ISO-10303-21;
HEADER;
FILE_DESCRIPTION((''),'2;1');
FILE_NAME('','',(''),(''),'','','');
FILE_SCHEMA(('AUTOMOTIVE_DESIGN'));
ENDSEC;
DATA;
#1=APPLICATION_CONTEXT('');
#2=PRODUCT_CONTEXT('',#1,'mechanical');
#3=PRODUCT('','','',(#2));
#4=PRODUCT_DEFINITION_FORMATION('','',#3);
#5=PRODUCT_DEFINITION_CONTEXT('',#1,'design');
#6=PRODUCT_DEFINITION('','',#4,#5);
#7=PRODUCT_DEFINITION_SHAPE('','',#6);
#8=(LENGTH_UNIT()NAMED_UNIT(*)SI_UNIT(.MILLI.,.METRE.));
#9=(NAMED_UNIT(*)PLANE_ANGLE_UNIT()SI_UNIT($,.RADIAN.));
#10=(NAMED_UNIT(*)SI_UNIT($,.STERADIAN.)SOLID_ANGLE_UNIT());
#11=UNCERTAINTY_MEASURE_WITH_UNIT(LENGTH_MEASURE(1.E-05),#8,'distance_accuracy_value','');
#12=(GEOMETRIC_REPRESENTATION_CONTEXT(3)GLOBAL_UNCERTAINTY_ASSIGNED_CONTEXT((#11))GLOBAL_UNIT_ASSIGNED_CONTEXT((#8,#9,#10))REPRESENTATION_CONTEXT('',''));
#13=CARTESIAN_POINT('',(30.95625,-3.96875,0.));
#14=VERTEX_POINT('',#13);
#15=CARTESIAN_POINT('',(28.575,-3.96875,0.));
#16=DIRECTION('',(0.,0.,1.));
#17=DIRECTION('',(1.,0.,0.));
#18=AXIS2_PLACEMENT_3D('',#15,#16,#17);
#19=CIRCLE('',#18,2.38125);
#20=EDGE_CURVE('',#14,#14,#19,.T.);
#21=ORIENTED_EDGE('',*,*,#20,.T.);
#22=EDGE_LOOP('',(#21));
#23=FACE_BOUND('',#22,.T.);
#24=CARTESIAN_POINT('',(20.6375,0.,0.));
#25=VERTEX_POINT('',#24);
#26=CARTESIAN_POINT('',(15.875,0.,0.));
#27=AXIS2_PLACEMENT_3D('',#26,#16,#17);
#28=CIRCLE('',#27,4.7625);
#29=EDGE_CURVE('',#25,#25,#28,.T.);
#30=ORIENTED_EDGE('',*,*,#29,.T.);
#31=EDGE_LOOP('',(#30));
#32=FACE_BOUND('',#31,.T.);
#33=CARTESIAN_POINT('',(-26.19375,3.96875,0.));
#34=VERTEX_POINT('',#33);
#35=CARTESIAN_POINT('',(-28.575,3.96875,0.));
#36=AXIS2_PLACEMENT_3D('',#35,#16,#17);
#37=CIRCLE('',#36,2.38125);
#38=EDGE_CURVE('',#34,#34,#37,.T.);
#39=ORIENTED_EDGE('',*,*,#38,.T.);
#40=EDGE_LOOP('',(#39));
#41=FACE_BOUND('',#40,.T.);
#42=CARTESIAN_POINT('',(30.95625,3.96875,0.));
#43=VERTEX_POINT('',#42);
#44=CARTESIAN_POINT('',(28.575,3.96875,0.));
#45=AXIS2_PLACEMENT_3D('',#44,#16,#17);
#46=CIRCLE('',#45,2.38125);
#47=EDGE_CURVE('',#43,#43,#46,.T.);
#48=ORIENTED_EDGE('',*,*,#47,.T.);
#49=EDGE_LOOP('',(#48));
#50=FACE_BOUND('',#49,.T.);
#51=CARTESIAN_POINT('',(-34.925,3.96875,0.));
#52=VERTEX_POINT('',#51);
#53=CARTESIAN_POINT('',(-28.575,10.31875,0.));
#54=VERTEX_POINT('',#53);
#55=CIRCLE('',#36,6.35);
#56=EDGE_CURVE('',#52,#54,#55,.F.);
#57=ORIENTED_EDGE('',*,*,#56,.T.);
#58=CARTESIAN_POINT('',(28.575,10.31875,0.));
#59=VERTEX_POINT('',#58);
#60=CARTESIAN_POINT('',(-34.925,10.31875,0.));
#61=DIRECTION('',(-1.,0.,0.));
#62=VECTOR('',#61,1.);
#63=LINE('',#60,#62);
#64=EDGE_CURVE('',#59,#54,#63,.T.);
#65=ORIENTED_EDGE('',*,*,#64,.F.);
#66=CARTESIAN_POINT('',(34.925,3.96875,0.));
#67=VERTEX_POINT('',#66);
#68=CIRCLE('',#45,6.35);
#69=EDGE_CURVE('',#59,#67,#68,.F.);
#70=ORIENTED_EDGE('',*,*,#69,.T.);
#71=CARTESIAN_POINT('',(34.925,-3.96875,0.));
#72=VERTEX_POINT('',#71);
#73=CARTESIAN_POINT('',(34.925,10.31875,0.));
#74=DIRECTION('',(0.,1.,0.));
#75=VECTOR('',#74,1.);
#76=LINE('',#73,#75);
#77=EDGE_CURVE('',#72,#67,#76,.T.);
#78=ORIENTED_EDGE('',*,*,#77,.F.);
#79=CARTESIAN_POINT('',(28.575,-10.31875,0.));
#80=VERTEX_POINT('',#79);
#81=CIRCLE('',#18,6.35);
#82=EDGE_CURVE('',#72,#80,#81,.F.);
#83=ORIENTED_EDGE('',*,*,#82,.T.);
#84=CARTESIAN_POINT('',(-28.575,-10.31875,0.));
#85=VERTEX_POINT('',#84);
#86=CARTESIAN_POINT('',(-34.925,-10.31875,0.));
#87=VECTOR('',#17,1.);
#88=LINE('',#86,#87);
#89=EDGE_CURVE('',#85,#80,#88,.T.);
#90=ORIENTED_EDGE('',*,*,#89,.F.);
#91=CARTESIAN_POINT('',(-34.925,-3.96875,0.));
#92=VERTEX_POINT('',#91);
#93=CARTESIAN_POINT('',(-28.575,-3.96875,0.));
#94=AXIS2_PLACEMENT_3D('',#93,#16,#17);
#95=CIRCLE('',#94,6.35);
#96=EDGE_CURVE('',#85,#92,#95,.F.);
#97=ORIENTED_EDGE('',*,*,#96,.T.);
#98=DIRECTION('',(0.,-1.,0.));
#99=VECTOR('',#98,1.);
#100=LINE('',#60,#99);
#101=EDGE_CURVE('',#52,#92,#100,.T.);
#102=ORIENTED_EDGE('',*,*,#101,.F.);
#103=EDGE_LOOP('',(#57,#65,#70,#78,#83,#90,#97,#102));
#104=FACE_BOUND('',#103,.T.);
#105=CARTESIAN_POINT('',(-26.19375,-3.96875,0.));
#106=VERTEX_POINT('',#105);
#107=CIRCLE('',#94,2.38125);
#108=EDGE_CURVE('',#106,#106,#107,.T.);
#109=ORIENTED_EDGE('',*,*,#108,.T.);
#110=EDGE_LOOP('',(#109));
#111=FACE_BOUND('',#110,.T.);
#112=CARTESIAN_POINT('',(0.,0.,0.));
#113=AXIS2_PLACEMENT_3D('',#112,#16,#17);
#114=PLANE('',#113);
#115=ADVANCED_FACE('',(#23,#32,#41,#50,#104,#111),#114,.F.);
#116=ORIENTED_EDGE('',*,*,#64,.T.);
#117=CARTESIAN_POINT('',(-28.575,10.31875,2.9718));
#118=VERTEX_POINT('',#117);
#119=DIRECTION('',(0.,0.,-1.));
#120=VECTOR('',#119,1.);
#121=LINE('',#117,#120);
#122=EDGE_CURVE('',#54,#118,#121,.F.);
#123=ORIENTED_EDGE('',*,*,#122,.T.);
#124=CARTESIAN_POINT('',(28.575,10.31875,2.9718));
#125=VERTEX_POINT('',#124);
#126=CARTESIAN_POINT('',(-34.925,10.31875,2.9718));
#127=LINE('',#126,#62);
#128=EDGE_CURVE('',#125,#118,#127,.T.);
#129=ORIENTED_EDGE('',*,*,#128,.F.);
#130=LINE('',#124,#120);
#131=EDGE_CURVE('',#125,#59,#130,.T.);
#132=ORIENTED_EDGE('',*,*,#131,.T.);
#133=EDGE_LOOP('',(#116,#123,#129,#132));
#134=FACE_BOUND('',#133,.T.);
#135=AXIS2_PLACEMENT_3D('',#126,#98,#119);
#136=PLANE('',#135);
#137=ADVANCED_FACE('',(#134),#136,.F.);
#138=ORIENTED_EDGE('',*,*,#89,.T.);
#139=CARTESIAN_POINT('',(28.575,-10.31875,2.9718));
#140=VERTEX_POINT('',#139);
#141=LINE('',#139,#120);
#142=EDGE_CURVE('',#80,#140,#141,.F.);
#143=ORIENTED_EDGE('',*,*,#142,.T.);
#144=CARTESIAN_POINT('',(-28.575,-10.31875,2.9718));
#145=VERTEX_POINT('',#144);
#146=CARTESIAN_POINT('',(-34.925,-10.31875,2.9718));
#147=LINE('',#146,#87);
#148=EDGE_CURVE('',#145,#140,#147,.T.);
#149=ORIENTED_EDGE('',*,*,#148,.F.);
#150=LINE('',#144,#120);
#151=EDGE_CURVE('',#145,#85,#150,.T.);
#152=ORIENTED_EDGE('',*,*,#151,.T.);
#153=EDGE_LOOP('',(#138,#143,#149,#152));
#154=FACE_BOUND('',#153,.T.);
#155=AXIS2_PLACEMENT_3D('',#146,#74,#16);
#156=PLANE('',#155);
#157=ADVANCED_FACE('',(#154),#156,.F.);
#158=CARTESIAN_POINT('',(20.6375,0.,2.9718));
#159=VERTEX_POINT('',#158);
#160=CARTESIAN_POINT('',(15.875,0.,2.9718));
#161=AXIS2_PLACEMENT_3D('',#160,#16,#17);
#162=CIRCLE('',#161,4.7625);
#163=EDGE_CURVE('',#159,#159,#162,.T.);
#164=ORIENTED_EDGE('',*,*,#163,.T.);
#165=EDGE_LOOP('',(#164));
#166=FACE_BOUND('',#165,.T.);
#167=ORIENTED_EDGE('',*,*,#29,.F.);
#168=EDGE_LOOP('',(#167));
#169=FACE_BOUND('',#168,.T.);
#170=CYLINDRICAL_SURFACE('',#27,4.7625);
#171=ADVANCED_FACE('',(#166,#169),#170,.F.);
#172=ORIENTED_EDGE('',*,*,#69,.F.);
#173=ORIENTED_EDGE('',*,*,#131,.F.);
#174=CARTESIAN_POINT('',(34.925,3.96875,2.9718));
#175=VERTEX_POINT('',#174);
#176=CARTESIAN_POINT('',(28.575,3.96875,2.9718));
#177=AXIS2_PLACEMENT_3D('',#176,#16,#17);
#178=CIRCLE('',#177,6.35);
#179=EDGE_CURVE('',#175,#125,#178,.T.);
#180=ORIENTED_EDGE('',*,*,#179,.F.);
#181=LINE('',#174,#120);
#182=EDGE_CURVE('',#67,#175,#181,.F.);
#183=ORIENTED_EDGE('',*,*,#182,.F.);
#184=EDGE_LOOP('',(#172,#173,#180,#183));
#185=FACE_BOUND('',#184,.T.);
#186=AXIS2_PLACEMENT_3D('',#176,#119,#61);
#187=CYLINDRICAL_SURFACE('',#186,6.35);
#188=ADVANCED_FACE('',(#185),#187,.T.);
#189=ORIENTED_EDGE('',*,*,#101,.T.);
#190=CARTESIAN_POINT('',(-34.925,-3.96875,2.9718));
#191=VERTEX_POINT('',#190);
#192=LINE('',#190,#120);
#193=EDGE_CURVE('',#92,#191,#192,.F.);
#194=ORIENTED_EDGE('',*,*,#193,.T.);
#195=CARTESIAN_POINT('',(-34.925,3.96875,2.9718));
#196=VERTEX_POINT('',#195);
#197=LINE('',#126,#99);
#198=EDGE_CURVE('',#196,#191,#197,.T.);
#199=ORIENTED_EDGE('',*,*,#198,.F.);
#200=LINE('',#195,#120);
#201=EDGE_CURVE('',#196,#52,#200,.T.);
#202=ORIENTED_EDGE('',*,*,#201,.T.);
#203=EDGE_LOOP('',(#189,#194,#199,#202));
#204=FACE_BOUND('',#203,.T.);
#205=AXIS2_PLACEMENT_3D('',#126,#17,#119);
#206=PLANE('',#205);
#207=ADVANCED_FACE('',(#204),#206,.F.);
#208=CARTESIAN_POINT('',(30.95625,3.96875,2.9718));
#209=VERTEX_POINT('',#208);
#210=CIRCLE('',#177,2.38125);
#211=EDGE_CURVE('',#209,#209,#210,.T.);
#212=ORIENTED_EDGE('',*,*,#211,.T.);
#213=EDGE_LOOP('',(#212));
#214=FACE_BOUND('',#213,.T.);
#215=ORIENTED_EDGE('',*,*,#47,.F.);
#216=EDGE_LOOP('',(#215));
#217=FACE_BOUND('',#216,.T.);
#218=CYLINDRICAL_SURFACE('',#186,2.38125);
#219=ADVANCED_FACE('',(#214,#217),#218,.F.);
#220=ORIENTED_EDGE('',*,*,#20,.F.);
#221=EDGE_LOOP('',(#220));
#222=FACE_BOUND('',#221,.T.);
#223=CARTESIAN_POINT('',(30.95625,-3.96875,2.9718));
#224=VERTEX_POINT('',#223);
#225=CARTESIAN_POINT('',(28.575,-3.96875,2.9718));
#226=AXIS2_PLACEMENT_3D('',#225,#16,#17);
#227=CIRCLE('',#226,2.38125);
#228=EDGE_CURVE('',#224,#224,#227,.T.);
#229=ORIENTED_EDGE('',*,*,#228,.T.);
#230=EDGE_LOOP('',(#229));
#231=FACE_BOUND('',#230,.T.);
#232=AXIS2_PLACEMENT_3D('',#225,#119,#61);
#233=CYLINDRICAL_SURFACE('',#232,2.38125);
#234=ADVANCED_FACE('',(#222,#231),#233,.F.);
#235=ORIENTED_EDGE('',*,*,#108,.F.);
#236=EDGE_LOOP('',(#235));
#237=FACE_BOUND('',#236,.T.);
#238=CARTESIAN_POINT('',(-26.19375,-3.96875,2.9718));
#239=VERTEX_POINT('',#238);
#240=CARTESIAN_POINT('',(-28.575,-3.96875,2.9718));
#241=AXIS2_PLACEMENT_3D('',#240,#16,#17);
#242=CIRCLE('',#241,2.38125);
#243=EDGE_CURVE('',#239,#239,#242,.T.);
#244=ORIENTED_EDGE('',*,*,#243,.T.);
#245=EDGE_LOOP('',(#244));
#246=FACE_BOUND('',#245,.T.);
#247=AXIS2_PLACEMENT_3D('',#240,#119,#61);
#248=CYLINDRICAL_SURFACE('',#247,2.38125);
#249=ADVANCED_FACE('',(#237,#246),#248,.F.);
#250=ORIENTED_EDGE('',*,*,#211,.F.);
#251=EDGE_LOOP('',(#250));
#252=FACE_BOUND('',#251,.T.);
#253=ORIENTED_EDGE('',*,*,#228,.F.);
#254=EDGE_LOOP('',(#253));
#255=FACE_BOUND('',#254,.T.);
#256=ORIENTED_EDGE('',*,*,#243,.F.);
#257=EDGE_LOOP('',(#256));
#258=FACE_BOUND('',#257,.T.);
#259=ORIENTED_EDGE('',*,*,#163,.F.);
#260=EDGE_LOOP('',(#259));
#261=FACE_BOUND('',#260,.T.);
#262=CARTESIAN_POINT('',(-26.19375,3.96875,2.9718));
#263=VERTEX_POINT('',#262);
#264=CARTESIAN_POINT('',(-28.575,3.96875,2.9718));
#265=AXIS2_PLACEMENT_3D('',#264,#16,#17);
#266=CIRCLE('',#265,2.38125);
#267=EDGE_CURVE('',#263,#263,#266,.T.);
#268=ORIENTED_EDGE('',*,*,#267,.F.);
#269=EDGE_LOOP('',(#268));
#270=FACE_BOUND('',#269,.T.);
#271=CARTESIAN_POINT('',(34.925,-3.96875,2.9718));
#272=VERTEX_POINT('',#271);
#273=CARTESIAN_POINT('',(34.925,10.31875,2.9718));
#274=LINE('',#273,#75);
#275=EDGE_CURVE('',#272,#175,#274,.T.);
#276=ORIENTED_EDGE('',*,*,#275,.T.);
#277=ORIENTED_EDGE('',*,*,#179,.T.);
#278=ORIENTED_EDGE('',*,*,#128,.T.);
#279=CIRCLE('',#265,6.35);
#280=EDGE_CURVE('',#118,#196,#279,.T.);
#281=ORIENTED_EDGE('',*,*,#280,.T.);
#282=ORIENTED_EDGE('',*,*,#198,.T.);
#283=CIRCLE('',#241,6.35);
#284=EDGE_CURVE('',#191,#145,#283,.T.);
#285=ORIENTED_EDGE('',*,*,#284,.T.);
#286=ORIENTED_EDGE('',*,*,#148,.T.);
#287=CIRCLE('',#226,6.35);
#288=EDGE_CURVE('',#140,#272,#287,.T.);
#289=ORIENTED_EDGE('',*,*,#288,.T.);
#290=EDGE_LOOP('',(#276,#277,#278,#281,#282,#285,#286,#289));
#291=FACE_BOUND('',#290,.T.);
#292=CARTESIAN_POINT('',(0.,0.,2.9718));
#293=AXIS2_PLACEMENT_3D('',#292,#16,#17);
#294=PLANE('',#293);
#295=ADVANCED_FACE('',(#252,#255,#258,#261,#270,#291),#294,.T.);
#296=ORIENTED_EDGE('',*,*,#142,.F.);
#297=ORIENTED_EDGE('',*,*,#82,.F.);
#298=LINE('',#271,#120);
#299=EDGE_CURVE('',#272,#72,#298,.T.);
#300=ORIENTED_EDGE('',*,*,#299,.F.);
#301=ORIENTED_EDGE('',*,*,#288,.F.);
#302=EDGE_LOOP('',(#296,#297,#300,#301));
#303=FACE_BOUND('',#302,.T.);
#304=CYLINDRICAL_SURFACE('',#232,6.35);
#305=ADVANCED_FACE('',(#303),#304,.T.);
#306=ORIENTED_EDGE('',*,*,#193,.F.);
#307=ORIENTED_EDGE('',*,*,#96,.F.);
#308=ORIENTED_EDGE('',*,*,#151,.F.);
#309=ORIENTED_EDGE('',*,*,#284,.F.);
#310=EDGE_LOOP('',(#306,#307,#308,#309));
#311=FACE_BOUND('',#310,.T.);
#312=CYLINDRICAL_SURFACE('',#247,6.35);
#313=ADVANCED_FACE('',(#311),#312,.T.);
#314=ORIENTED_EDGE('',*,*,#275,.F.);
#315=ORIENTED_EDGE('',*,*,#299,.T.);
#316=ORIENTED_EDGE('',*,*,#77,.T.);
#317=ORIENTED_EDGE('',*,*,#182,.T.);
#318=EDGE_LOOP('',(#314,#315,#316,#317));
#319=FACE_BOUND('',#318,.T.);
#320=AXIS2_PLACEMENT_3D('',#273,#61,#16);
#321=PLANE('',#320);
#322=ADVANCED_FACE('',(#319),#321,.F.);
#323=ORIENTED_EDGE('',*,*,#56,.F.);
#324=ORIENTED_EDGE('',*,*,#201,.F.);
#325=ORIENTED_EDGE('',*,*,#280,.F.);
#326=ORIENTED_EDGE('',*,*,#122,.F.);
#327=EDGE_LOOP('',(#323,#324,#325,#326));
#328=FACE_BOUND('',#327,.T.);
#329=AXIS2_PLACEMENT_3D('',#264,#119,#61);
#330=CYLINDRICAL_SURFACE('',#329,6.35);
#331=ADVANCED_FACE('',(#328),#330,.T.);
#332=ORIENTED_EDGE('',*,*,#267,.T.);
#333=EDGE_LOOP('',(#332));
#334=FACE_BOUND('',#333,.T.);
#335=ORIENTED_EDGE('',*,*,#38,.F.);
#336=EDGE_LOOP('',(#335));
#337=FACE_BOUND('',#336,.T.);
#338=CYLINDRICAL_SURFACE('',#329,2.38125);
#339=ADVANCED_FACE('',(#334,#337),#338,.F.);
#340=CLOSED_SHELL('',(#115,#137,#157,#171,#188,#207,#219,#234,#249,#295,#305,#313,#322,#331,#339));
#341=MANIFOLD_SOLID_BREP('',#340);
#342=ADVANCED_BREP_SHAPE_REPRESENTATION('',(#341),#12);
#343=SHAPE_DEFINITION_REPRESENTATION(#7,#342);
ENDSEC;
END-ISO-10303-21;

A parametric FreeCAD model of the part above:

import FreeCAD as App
import Part
import Sketcher

V = App.Vector
Q = App.Units.Quantity


def edges_at(feature, points):
    """Names of the edges that pass closest to the given points."""
    edges = feature.Shape.Edges
    near = lambda p: min(range(len(edges)), key=lambda i: edges[i].distToShape(Part.Vertex(*p))[0])
    return sorted({f"Edge{near(p) + 1}" for p in points})


def add_polygon(sketch, points):
    """Adds a closed chain of lines whose ends are joined by coincident constraints."""
    first, n = sketch.GeometryCount, len(points)
    for a, b in zip(points, points[1:] + points[:1]):
        sketch.addGeometry(Part.LineSegment(App.Vector(*a, 0), App.Vector(*b, 0)), False)
    for i in range(n):
        sketch.addConstraint(Sketcher.Constraint("Coincident", first + i, 2, first + (i + 1) % n, 1))

doc = App.newDocument("Part")
body = doc.addObject("PartDesign::Body", "Body")

# Sketch on XY plane
sketch1 = doc.addObject("Sketcher::SketchObject", "Sketch")
body.addObject(sketch1)
sketch1.AttachmentSupport = (doc.XY_Plane, [""])
sketch1.MapMode = "FlatFace"
add_polygon(sketch1, [(-34.925, 10.31875), (-34.925, -10.31875), (34.925, -10.31875), (34.925, 10.31875)])  # lines 0-3
sketch1.addGeometry(Part.Circle(V(-28.575, -3.96875, 0), V(0, 0, 1), 2.38125), False)  # 4
sketch1.addGeometry(Part.Circle(V(28.575, -3.96875, 0), V(0, 0, 1), 2.38125), False)  # 5
sketch1.addGeometry(Part.Circle(V(-28.575, 3.96875, 0), V(0, 0, 1), 2.38125), False)  # 6
sketch1.addGeometry(Part.Circle(V(28.575, 3.96875, 0), V(0, 0, 1), 2.38125), False)  # 7
sketch1.addConstraint(Sketcher.Constraint("Vertical", 0))
sketch1.addConstraint(Sketcher.Constraint("Horizontal", 1))
sketch1.addConstraint(Sketcher.Constraint("Vertical", 2))
sketch1.addConstraint(Sketcher.Constraint("Horizontal", 3))
sketch1.addConstraint(Sketcher.Constraint("Equal", 4, 5))
sketch1.addConstraint(Sketcher.Constraint("Equal", 5, 6))
sketch1.addConstraint(Sketcher.Constraint("Equal", 6, 7))
sketch1.addConstraint(Sketcher.Constraint("Symmetric", 5, 3, 6, 3, -1, 1))
sketch1.addConstraint(Sketcher.Constraint("Symmetric", 4, 3, 7, 3, -1, 1))
sketch1.addConstraint(Sketcher.Constraint("Symmetric", 0, 2, 2, 2, -1, 1))
sketch1.addConstraint(Sketcher.Constraint("Symmetric", 4, 3, 5, 3, -2))
sketch1.addConstraint(Sketcher.Constraint("Diameter", 4, Q("0.1875 in")))
sketch1.addConstraint(Sketcher.Constraint("DistanceX", 1, 1, 1, 2, Q("2.75 in")))
sketch1.addConstraint(Sketcher.Constraint("DistanceX", 0, 2, 5, 3, Q("2.5 in")))
sketch1.addConstraint(Sketcher.Constraint("DistanceY", 0, 2, 0, 1, Q("0.8125 in")))
sketch1.addConstraint(Sketcher.Constraint("DistanceY", 0, 2, 4, 3, Q("0.25 in")))
pad1 = doc.addObject("PartDesign::Pad", "Pad")
body.addObject(pad1)
pad1.Profile = sketch1
pad1.Length = Q("0.117 in")
doc.recompute()

fillet = doc.addObject("PartDesign::Fillet", "Fillet")
body.addObject(fillet)
fillet.Base = (pad1, edges_at(pad1, [
    (-34.925, 10.319, 1.486),
    (34.925, 10.319, 1.486),
    (34.925, -10.319, 1.486),
    (-34.925, -10.319, 1.486),
]))
fillet.Radius = Q("0.25 in")

# Sketch on XY plane
sketch2 = doc.addObject("Sketcher::SketchObject", "Sketch001")
body.addObject(sketch2)
sketch2.AttachmentSupport = (doc.XY_Plane, [""])
sketch2.MapMode = "FlatFace"
sketch2.AttachmentOffset = App.Placement(V(0, 0, 0.117 * 25.4), App.Rotation())
sketch2.addGeometry(Part.Circle(V(15.875, 0, 0), V(0, 0, 1), 4.7625), False)
sketch2.addConstraint(Sketcher.Constraint("PointOnObject", 0, 3, -1))
sketch2.addConstraint(Sketcher.Constraint("Diameter", 0, Q("0.375 in")))
sketch2.addConstraint(Sketcher.Constraint("DistanceX", -1, 1, 0, 3, Q("0.625 in")))
pocket1 = doc.addObject("PartDesign::Pocket", "Pocket")
body.addObject(pocket1)
pocket1.Profile = sketch2
pocket1.Type = "ThroughAll"

doc.recompute()
